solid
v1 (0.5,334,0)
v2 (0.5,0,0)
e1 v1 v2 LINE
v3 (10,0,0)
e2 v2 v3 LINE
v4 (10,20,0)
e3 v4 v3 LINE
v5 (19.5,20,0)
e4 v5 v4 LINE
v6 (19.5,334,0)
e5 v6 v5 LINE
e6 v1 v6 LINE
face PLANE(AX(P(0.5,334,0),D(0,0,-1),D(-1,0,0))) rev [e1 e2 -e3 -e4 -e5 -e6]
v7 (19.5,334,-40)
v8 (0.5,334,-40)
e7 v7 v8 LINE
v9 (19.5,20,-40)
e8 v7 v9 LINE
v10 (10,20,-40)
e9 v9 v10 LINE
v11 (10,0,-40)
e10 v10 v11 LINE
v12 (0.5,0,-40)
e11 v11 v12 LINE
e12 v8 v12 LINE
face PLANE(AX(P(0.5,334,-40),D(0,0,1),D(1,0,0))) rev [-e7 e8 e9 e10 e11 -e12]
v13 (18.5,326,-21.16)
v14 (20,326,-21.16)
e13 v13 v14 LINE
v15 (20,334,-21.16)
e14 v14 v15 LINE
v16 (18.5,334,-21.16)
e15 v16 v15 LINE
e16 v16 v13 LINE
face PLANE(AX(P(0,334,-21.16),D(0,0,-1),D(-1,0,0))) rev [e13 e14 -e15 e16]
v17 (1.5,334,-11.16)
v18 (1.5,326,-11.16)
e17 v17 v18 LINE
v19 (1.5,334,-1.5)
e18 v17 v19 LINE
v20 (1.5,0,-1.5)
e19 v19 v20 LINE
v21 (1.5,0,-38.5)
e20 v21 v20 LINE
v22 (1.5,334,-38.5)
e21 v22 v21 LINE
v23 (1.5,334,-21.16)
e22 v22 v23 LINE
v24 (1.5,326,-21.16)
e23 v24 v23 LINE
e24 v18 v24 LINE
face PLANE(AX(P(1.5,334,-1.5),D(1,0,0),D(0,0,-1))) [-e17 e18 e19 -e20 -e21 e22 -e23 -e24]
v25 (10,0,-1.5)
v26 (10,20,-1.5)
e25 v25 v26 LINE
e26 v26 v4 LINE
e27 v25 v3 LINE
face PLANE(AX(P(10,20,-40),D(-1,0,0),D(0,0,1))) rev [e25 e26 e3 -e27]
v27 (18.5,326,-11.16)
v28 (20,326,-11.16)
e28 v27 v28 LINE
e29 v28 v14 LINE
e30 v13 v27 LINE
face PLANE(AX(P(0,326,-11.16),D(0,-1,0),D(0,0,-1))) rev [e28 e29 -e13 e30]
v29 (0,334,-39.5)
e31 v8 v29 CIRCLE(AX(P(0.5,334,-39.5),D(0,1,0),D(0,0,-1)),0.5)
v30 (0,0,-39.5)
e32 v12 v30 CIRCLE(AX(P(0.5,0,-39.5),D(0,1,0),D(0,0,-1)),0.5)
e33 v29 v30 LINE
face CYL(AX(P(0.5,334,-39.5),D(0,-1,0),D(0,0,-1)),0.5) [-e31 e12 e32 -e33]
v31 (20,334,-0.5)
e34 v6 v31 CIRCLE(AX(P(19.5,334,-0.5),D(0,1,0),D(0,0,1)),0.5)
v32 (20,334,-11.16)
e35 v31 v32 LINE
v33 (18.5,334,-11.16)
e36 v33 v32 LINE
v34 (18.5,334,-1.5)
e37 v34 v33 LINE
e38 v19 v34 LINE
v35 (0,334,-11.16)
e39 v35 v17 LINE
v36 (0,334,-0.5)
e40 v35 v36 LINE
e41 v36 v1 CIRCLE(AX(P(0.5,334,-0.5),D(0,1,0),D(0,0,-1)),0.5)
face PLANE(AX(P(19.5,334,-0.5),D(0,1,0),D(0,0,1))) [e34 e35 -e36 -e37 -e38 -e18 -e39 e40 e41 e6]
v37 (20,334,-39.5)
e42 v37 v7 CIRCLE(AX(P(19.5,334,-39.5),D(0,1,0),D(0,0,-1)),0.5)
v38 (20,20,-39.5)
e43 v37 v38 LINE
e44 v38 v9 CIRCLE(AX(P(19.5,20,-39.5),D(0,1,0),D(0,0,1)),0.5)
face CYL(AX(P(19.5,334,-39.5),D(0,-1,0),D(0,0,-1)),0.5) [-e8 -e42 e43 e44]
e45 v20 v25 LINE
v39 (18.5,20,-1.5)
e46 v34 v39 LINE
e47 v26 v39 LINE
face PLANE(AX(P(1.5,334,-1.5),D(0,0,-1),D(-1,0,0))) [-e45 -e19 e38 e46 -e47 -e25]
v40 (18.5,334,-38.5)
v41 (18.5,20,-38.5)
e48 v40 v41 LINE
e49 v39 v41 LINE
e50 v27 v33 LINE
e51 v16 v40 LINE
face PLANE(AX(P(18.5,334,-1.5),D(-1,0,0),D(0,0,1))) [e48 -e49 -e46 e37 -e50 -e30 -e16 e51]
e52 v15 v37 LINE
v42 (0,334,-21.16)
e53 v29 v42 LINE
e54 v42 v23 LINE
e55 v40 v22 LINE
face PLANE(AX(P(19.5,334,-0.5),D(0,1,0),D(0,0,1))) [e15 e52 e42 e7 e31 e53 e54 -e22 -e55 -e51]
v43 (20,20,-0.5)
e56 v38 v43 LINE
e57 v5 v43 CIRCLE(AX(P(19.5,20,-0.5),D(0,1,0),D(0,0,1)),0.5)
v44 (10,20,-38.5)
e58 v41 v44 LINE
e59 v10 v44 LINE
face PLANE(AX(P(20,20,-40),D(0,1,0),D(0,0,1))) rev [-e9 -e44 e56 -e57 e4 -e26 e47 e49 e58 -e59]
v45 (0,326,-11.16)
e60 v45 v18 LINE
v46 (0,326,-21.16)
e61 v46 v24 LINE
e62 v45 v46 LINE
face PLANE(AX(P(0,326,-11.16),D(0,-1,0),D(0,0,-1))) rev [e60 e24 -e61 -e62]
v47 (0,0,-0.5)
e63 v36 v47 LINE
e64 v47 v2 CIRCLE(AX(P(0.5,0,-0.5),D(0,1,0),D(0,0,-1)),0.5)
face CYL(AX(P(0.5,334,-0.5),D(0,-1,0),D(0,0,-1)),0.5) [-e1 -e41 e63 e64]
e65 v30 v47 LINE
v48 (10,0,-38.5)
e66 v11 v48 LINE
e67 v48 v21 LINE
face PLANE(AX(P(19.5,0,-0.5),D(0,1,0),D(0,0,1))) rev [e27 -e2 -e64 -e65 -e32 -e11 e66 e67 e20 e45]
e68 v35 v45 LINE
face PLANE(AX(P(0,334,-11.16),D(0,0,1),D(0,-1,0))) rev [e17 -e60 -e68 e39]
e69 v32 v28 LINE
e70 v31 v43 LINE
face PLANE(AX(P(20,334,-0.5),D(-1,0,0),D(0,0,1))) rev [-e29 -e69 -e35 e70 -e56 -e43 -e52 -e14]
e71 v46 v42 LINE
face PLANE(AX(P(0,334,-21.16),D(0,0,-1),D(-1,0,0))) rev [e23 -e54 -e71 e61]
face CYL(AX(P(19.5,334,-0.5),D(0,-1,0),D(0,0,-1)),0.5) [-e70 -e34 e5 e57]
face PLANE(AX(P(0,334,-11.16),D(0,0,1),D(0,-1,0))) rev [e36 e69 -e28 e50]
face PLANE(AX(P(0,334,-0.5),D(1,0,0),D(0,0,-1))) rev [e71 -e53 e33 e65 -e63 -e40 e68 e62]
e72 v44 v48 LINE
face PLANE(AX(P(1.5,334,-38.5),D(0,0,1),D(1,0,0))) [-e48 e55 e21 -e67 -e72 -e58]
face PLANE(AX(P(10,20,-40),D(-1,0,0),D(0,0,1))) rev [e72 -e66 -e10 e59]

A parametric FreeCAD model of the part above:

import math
import FreeCAD as App
import Part
import Sketcher
from FreeCAD import Vector
Q = App.Units.Quantity


def add_polygon(sketch, points):
    """Adds a closed chain of lines whose ends are joined by coincident constraints."""
    first, n = sketch.GeometryCount, len(points)
    for a, b in zip(points, points[1:] + points[:1]):
        sketch.addGeometry(Part.LineSegment(App.Vector(*a, 0), App.Vector(*b, 0)), False)
    for i in range(n):
        sketch.addConstraint(Sketcher.Constraint("Coincident", first + i, 2, first + (i + 1) % n, 1))

doc = App.newDocument("Part")
params = doc.addObject("Spreadsheet::Sheet", "Params")
for row, (alias, value) in enumerate([
    ("sketch1_radius", "0.5 mm"),
    ("sketch1_width", "19 mm"),
    ("sketch1_width2", "17 mm"),
    ("sketch1_height", "39 mm"),
    ("sketch1_height2", "37 mm"),
    ("pad1_length", "334 mm"),
    ("sketch2_width", "10 mm"),
    ("sketch2_height", "20 mm"),
    ("pocket1_length", "40 mm"),
    ("sketch3_width", "8 mm"),
    ("sketch3_height", "10 mm"),
], start=1):
    params.set(f"A{row}", alias)
    params.set(f"B{row}", "=" + value)
    params.setAlias(f"B{row}", alias)

body = doc.addObject("PartDesign::Body", "Body")

# Sketch on XZ plane
sketch1 = doc.addObject("Sketcher::SketchObject", "Sketch")
body.addObject(sketch1)
sketch1.AttachmentSupport = (doc.XZ_Plane, [""])
sketch1.MapMode = "FlatFace"
sketch1.addGeometry(Part.LineSegment(Vector(0.5, 0, 0), Vector(19.5, 0, 0)), False)  # 0
sketch1.addGeometry(Part.ArcOfCircle(Part.Circle(Vector(19.5, -0.5, 0), Vector(0, 0, 1), 0.5), math.radians(0), math.radians(90)), False)  # 1
sketch1.addGeometry(Part.LineSegment(Vector(20, -0.5, 0), Vector(20, -39.5, 0)), False)  # 2
sketch1.addGeometry(Part.ArcOfCircle(Part.Circle(Vector(19.5, -39.5, 0), Vector(0, 0, 1), 0.5), math.radians(-90), math.radians(0)), False)  # 3
sketch1.addGeometry(Part.LineSegment(Vector(19.5, -40, 0), Vector(0.5, -40, 0)), False)  # 4
sketch1.addGeometry(Part.ArcOfCircle(Part.Circle(Vector(0.5, -39.5, 0), Vector(0, 0, 1), 0.5), math.radians(180), math.radians(270)), False)  # 5
sketch1.addGeometry(Part.LineSegment(Vector(0, -39.5, 0), Vector(0, -0.5, 0)), False)  # 6
sketch1.addGeometry(Part.ArcOfCircle(Part.Circle(Vector(0.5, -0.5, 0), Vector(0, 0, 1), 0.5), math.radians(90), math.radians(180)), False)  # 7
add_polygon(sketch1, [(18.5, -1.5), (1.5, -1.5), (1.5, -38.5), (18.5, -38.5)])  # lines 8-11
sketch1.addConstraint([
    Sketcher.Constraint("Tangent", 0, 2, 1, 2),
    Sketcher.Constraint("Tangent", 1, 1, 2, 1),
    Sketcher.Constraint("Tangent", 2, 2, 3, 2),
    Sketcher.Constraint("Tangent", 3, 1, 4, 1),
    Sketcher.Constraint("Tangent", 4, 2, 5, 2),
    Sketcher.Constraint("Tangent", 5, 1, 6, 1),
    Sketcher.Constraint("Tangent", 6, 2, 7, 2),
    Sketcher.Constraint("Tangent", 7, 1, 0, 1),
    Sketcher.Constraint("Horizontal", 0),
    Sketcher.Constraint("Vertical", 2),
    Sketcher.Constraint("Horizontal", 4),
    Sketcher.Constraint("Vertical", 6),
    Sketcher.Constraint("Horizontal", 8),
    Sketcher.Constraint("Vertical", 9),
    Sketcher.Constraint("Horizontal", 10),
    Sketcher.Constraint("Vertical", 11),
    Sketcher.Constraint("Equal", 1, 3),
    Sketcher.Constraint("Equal", 3, 5),
    Sketcher.Constraint("Equal", 5, 7),
    Sketcher.Constraint("PointOnObject", 0, 2, -1),
    Sketcher.Constraint("PointOnObject", 5, 1, -2),
    Sketcher.Constraint("Radius", 1, Q("0.5 mm")),
    Sketcher.Constraint("DistanceX", 0, 1, 0, 2, Q("19 mm")),
    Sketcher.Constraint("DistanceX", 8, 2, 8, 1, Q("17 mm")),
    Sketcher.Constraint("DistanceY", 2, 2, 2, 1, Q("39 mm")),
    Sketcher.Constraint("DistanceY", 9, 2, 9, 1, Q("37 mm")),
    Sketcher.Constraint("DistanceX", 7, 3, 8, 2, Q("1 mm")),
    Sketcher.Constraint("DistanceY", 8, 2, 7, 3, Q("1 mm")),
])
sketch1.setExpression("Constraints[25]", "Params.sketch1_radius")
sketch1.setExpression("Constraints[26]", "Params.sketch1_width")
sketch1.setExpression("Constraints[27]", "Params.sketch1_width2")
sketch1.setExpression("Constraints[28]", "Params.sketch1_height")
sketch1.setExpression("Constraints[29]", "Params.sketch1_height2")
pad1 = doc.addObject("PartDesign::Pad", "Pad")
body.addObject(pad1)
pad1.Profile = sketch1
pad1.setExpression("Length", "Params.pad1_length")
pad1.Reversed = True

# Sketch on XY plane
sketch2 = doc.addObject("Sketcher::SketchObject", "Sketch001")
body.addObject(sketch2)
sketch2.AttachmentSupport = (doc.XY_Plane, [""])
sketch2.MapMode = "FlatFace"
add_polygon(sketch2, [(10, 20), (10, 0), (20, 0), (20, 20)])  # lines 0-3
sketch2.addConstraint([
    Sketcher.Constraint("Vertical", 0),
    Sketcher.Constraint("Horizontal", 1),
    Sketcher.Constraint("Vertical", 2),
    Sketcher.Constraint("Horizontal", 3),
    Sketcher.Constraint("PointOnObject", 0, 2, -1),
    Sketcher.Constraint("DistanceX", 1, 1, 1, 2, Q("10 mm")),
    Sketcher.Constraint("DistanceY", 0, 2, 0, 1, Q("20 mm")),
    Sketcher.Constraint("DistanceX", -1, 1, 0, 2, Q("10 mm")),
])
sketch2.setExpression("Constraints[9]", "Params.sketch2_width")
sketch2.setExpression("Constraints[10]", "Params.sketch2_height")
pocket1 = doc.addObject("PartDesign::Pocket", "Pocket")
body.addObject(pocket1)
pocket1.Profile = sketch2
pocket1.setExpression("Length", "Params.pocket1_length")

# Sketch on YZ plane
sketch3 = doc.addObject("Sketcher::SketchObject", "Sketch002")
body.addObject(sketch3)
sketch3.AttachmentSupport = (doc.YZ_Plane, [""])
sketch3.MapMode = "FlatFace"
sketch3.AttachmentOffset = App.Placement(Vector(0, 0, 20), App.Rotation())
add_polygon(sketch3, [(334, -11), (326, -11), (326, -21), (334, -21)])  # lines 0-3
sketch3.addConstraint([
    Sketcher.Constraint("Horizontal", 0),
    Sketcher.Constraint("Vertical", 1),
    Sketcher.Constraint("Horizontal", 2),
    Sketcher.Constraint("Vertical", 3),
    Sketcher.Constraint("DistanceX", 0, 2, 0, 1, Q("8 mm")),
    Sketcher.Constraint("DistanceY", 1, 2, 1, 1, Q("10 mm")),
    Sketcher.Constraint("DistanceX", -1, 1, 0, 2, Q("326 mm")),
    Sketcher.Constraint("DistanceY", 0, 2, -1, 1, Q("11.16 mm")),
])
sketch3.setExpression("Constraints[8]", "Params.sketch3_width")
sketch3.setExpression("Constraints[9]", "Params.sketch3_height")
pocket2 = doc.addObject("PartDesign::Pocket", "Pocket001")
body.addObject(pocket2)
pocket2.Profile = sketch3
pocket2.Type = "ThroughAll"

doc.recompute()
